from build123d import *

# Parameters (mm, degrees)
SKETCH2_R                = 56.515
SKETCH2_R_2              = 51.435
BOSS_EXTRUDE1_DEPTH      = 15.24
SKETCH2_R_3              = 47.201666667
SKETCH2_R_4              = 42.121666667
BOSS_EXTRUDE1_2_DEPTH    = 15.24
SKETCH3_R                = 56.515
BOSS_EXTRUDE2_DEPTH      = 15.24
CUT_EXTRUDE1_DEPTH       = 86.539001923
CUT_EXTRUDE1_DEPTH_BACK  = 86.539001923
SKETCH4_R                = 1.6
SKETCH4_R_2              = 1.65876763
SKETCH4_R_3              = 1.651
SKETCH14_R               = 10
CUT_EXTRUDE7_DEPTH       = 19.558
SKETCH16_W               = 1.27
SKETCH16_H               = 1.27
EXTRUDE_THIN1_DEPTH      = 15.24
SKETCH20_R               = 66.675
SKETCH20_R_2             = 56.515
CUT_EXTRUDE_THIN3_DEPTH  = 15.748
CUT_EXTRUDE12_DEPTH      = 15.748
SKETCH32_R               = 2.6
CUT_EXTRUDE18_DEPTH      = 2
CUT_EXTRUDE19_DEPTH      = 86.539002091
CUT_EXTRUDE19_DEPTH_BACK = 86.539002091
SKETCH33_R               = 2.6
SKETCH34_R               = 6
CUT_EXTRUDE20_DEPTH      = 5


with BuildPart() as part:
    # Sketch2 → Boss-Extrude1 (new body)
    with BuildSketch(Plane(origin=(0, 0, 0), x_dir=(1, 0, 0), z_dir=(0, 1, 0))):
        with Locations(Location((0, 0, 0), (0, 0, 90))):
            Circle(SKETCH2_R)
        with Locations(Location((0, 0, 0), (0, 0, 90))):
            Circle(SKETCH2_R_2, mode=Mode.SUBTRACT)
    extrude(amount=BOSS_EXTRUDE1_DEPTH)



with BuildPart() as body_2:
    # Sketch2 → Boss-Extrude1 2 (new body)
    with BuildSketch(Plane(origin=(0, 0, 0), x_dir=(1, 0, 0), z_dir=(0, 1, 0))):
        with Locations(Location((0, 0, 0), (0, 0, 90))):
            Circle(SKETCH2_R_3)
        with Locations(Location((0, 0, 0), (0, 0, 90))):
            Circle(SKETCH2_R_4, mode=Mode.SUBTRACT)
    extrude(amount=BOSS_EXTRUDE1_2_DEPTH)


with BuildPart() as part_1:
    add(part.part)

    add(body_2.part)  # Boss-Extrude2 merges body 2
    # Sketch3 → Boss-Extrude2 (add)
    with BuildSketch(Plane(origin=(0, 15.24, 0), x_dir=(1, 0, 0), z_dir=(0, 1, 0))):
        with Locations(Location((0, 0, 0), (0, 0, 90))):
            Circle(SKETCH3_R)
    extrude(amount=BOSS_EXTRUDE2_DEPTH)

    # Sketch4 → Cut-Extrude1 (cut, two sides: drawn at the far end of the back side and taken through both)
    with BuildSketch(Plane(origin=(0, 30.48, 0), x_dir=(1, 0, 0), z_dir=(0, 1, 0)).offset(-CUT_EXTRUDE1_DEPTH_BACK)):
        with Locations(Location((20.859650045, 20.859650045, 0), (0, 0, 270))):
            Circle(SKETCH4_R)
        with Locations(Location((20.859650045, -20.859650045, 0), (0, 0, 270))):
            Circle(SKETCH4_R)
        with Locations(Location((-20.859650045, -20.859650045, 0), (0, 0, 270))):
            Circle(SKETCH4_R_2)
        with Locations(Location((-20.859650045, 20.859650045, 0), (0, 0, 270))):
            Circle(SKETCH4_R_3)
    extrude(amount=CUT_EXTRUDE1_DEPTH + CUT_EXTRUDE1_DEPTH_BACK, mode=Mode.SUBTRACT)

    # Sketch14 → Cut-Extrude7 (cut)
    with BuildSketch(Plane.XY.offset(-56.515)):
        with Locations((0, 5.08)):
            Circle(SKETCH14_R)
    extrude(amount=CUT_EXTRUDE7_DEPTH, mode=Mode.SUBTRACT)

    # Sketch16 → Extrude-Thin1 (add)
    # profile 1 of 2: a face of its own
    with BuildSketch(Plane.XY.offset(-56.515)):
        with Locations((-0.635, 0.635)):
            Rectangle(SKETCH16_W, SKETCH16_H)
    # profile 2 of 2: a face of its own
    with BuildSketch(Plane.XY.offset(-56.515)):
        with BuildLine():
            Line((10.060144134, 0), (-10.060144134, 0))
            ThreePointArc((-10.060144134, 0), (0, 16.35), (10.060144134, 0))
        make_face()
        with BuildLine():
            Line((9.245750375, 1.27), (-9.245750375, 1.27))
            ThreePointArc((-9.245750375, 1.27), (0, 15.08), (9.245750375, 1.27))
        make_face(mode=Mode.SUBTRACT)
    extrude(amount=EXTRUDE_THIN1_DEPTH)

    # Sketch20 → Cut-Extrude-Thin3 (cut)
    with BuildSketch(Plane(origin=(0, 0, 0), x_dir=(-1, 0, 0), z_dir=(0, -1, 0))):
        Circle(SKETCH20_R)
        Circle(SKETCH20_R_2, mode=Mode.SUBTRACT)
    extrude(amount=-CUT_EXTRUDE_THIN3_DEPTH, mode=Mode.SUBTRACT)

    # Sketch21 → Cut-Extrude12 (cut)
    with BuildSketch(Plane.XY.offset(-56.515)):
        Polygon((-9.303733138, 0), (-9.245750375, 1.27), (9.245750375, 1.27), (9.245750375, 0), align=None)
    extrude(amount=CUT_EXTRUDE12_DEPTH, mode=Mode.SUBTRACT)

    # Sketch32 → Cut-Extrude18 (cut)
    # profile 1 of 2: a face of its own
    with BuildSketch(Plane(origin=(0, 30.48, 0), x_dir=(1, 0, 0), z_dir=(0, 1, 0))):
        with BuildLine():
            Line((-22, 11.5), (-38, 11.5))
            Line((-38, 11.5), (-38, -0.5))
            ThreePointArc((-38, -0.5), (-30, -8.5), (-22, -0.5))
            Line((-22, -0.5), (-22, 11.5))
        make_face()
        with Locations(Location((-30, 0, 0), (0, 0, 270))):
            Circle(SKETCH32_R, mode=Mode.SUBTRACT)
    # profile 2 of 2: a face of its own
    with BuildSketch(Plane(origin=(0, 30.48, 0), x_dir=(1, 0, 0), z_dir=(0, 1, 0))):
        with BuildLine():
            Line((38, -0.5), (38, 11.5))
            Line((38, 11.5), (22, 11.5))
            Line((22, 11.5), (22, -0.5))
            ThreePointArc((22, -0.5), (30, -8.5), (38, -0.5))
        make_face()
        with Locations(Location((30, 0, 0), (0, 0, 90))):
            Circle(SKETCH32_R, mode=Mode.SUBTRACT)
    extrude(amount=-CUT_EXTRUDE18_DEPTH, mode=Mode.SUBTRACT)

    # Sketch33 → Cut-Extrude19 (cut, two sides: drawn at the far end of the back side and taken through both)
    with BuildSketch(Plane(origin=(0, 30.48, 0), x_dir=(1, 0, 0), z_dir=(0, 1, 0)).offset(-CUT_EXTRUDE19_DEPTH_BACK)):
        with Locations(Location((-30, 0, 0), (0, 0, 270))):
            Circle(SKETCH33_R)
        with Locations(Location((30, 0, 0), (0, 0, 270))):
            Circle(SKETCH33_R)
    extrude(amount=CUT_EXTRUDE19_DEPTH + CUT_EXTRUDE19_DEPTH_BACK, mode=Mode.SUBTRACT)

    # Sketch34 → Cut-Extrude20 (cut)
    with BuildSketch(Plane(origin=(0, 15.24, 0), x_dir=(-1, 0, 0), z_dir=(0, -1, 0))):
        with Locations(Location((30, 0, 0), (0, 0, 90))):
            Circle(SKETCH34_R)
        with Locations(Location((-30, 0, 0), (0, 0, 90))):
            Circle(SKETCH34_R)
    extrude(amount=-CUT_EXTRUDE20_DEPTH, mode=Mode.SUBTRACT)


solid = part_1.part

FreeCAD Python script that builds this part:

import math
import FreeCAD as App
import Part
import Sketcher

V = App.Vector
Q = App.Units.Quantity

doc = App.newDocument("Part")
body = doc.addObject("PartDesign::Body", "Body")

# Sketch on XZ plane
sketch1 = body.newObject("Sketcher::SketchObject", "Sketch")
sketch1.AttachmentSupport = (doc.getObject("XZ_Plane"), [""])
sketch1.MapMode = "FlatFace"
sketch1.addGeometry(Part.Circle(V(0, 0, 0), V(0, 0, 1), 57), False)
sketch1.addGeometry(Part.Circle(V(0, 0, 0), V(0, 0, 1), 51), False)
sketch1.addConstraint(Sketcher.Constraint("Coincident", 0, 3, -1, 1))
sketch1.addConstraint(Sketcher.Constraint("Coincident", 1, 3, -1, 1))
sketch1.addConstraint(Sketcher.Constraint("Diameter", 0, Q("4.45 in")))
sketch1.addConstraint(Sketcher.Constraint("Diameter", 1, Q("4.05 in")))
pad1 = body.newObject("PartDesign::Pad", "Pad")
pad1.Profile = sketch1
pad1.Length = Q("0.6 in")
pad1.Reversed = True
body2 = doc.addObject("PartDesign::Body", "Body001")

# Sketch on XZ plane
sketch2 = body2.newObject("Sketcher::SketchObject", "Sketch001")
sketch2.AttachmentSupport = (doc.getObject("XZ_Plane001"), [""])
sketch2.MapMode = "FlatFace"
sketch2.addGeometry(Part.Circle(V(0, 0, 0), V(0, 0, 1), 47), False)
sketch2.addGeometry(Part.Circle(V(0, 0, 0), V(0, 0, 1), 42), False)
sketch2.addConstraint(Sketcher.Constraint("Coincident", 0, 3, -1, 1))
sketch2.addConstraint(Sketcher.Constraint("Coincident", 1, 3, -1, 1))
sketch2.addConstraint(Sketcher.Constraint("Diameter", 0, 94.403333))
sketch2.addConstraint(Sketcher.Constraint("Diameter", 1, 84.243333))
pad2 = body2.newObject("PartDesign::Pad", "Pad001")
pad2.Profile = sketch2
pad2.Length = Q("0.6 in")
pad2.Reversed = True
body.AllowCompound = True
doc.recompute()

boolean = body.newObject("PartDesign::Boolean", "Boolean")
boolean.Type = "Fuse"
boolean.addObjects([body2])

# Sketch on XZ plane
sketch3 = body.newObject("Sketcher::SketchObject", "Sketch002")
sketch3.AttachmentSupport = (doc.getObject("XZ_Plane"), [""])
sketch3.MapMode = "FlatFace"
sketch3.AttachmentOffset = App.Placement(V(0, 0, -0.6 * 25.4), App.Rotation())
sketch3.addGeometry(Part.Circle(V(0, 0, 0), V(0, 0, 1), 57), False)
sketch3.addConstraint(Sketcher.Constraint("Coincident", 0, 3, -1, 1))
sketch3.addConstraint(Sketcher.Constraint("Diameter", 0, Q("4.45 in")))
pad3 = body.newObject("PartDesign::Pad", "Pad002")
pad3.Profile = sketch3
pad3.Length = Q("0.6 in")
pad3.Reversed = True

# Sketch on XZ plane
sketch4 = body.newObject("Sketcher::SketchObject", "Sketch003")
sketch4.AttachmentSupport = (doc.getObject("XZ_Plane"), [""])
sketch4.MapMode = "FlatFace"
sketch4.AttachmentOffset = App.Placement(V(0, 0, -1.2 * 25.4), App.Rotation())
sketch4.addGeometry(Part.Circle(V(20.9, -20.9, 0), V(0, 0, 1), 1.6), False)
sketch4.addGeometry(Part.Circle(V(20.9, 20.9, 0), V(0, 0, 1), 1.6), False)
sketch4.addGeometry(Part.Circle(V(-20.9, 20.9, 0), V(0, 0, 1), 1.7), False)
sketch4.addGeometry(Part.Circle(V(-20.9, -20.9, 0), V(0, 0, 1), 1.7), False)
sketch4.addConstraint(Sketcher.Constraint("Equal", 0, 1))
sketch4.addConstraint(Sketcher.Constraint("Symmetric", 0, 3, 2, 3, -1, 1))
sketch4.addConstraint(Sketcher.Constraint("Symmetric", 1, 3, 3, 3, -1, 1))
sketch4.addConstraint(Sketcher.Constraint("Symmetric", 1, 3, 2, 3, -2))
sketch4.addConstraint(Sketcher.Constraint("Diameter", 3, Q("0.13 in")))
sketch4.addConstraint(Sketcher.Constraint("Diameter", 0, 3.2))
sketch4.addConstraint(Sketcher.Constraint("Diameter", 2, 3.317535))
sketch4.addConstraint(Sketcher.Constraint("DistanceY", 0, 3, 1, 3, 41.7193))
sketch4.addConstraint(Sketcher.Constraint("DistanceX", 2, 3, 1, 3, 41.7193))
pocket1 = body.newObject("PartDesign::Pocket", "Pocket")
pocket1.Profile = sketch4
pocket1.Type = "ThroughAll"
pocket1.Midplane = True

# Sketch on XY plane
sketch5 = body.newObject("Sketcher::SketchObject", "Sketch004")
sketch5.AttachmentSupport = (doc.getObject("XY_Plane"), [""])
sketch5.MapMode = "FlatFace"
sketch5.AttachmentOffset = App.Placement(V(0, 0, -2.225 * 25.4), App.Rotation())
sketch5.addGeometry(Part.Circle(V(0, 5, 0), V(0, 0, 1), 10), False)
sketch5.addConstraint(Sketcher.Constraint("PointOnObject", 0, 3, -2))
sketch5.addConstraint(Sketcher.Constraint("DistanceY", -1, 1, 0, 3, Q("0.2 in")))
sketch5.addConstraint(Sketcher.Constraint("Diameter", 0, 20.0))
pocket2 = body.newObject("PartDesign::Pocket", "Pocket001")
pocket2.Profile = sketch5
pocket2.Length = Q("0.77 in")
pocket2.Reversed = True

# Sketch on XY plane
sketch6 = body.newObject("Sketcher::SketchObject", "Sketch005")
sketch6.AttachmentSupport = (doc.getObject("XY_Plane"), [""])
sketch6.MapMode = "FlatFace"
sketch6.AttachmentOffset = App.Placement(V(0, 0, -2.225 * 25.4), App.Rotation())
sketch6.addGeometry(Part.ArcOfCircle(Part.Circle(V(0, 5, 0), V(0, 0, 1), 11), math.radians(-27), math.radians(207)), False)
sketch6.addGeometry(Part.LineSegment(V(-10, 0, 0), V(10, 0, 0)), False)
sketch6.addGeometry(Part.ArcOfCircle(Part.Circle(V(0, 5, 0), V(0, 0, 1), 10), math.radians(-22), math.radians(202)), False)
sketch6.addGeometry(Part.LineSegment(V(9, 1, 0), V(-9, 1, 0)), False)
sketch6.addConstraint(Sketcher.Constraint("Coincident", 0, 1, 1, 2))
sketch6.addConstraint(Sketcher.Constraint("Coincident", 1, 1, 0, 2))
sketch6.addConstraint(Sketcher.Constraint("Coincident", 2, 1, 3, 1))
sketch6.addConstraint(Sketcher.Constraint("Coincident", 3, 2, 2, 2))
sketch6.addConstraint(Sketcher.Constraint("Horizontal", 1))
sketch6.addConstraint(Sketcher.Constraint("Horizontal", 3))
sketch6.addConstraint(Sketcher.Constraint("Coincident", 2, 3, 0, 3))
sketch6.addConstraint(Sketcher.Constraint("Symmetric", 0, 1, 1, 1, -1, 1))
sketch6.addConstraint(Sketcher.Constraint("DistanceY", -1, 1, 0, 3, Q("0.2 in")))
sketch6.addConstraint(Sketcher.Constraint("DistanceY", -1, 1, 2, 1, Q("0.05 in")))
sketch6.addConstraint(Sketcher.Constraint("Radius", 0, 11.27))
sketch6.addConstraint(Sketcher.Constraint("Radius", 2, 10.0))
pad4 = body.newObject("PartDesign::Pad", "Pad003")
pad4.Profile = sketch6
pad4.Length = Q("0.6 in")

# Sketch on XZ plane
sketch7 = body.newObject("Sketcher::SketchObject", "Sketch006")
sketch7.AttachmentSupport = (doc.getObject("XZ_Plane"), [""])
sketch7.MapMode = "FlatFace"
sketch7.addGeometry(Part.Circle(V(0, 0, 0), V(0, 0, 1), 67), False)
sketch7.addGeometry(Part.Circle(V(0, 0, 0), V(0, 0, 1), 57), False)
sketch7.addConstraint(Sketcher.Constraint("Coincident", 0, 3, -1, 1))
sketch7.addConstraint(Sketcher.Constraint("Coincident", 1, 3, -1, 1))
sketch7.addConstraint(Sketcher.Constraint("Diameter", 0, Q("5.25 in")))
sketch7.addConstraint(Sketcher.Constraint("Diameter", 1, Q("4.45 in")))
pocket3 = body.newObject("PartDesign::Pocket", "Pocket002")
pocket3.Profile = sketch7
pocket3.Length = Q("0.62 in")

# Sketch on XY plane
sketch8 = body.newObject("Sketcher::SketchObject", "Sketch007")
sketch8.AttachmentSupport = (doc.getObject("XY_Plane"), [""])
sketch8.MapMode = "FlatFace"
sketch8.AttachmentOffset = App.Placement(V(0, 0, -2.225 * 25.4), App.Rotation())
sketch8.addGeometry(Part.LineSegment(V(-9.2, 1.3, 0), V(-9.3, 0, 0)), False)
sketch8.addGeometry(Part.LineSegment(V(-9.3, 0, 0), V(9.2, 0, 0)), False)
sketch8.addGeometry(Part.LineSegment(V(9.2, 0, 0), V(9.2, 1.3, 0)), False)
sketch8.addGeometry(Part.LineSegment(V(9.2, 1.3, 0), V(-9.2, 1.3, 0)), False)
sketch8.addConstraint(Sketcher.Constraint("Coincident", 0, 2, 1, 1))
sketch8.addConstraint(Sketcher.Constraint("Coincident", 1, 2, 2, 1))
sketch8.addConstraint(Sketcher.Constraint("Coincident", 2, 2, 3, 1))
sketch8.addConstraint(Sketcher.Constraint("Coincident", 3, 2, 0, 1))
sketch8.addConstraint(Sketcher.Constraint("Horizontal", 1))
sketch8.addConstraint(Sketcher.Constraint("Vertical", 2))
sketch8.addConstraint(Sketcher.Constraint("Horizontal", 3))
sketch8.addConstraint(Sketcher.Constraint("PointOnObject", 0, 2, -1))
sketch8.addConstraint(Sketcher.Constraint("DistanceY", 2, 1, 2, 2, Q("0.05 in")))
sketch8.addConstraint(Sketcher.Constraint("DistanceX", 3, 2, 3, 1, 18.491501))
sketch8.addConstraint(Sketcher.Constraint("DistanceX", 1, 1, 1, 2, 18.549484))
sketch8.addConstraint(Sketcher.Constraint("DistanceX", -1, 1, 1, 2, 9.24575))
pocket4 = body.newObject("PartDesign::Pocket", "Pocket003")
pocket4.Profile = sketch8
pocket4.Length = Q("0.62 in")
pocket4.Reversed = True

# Sketch on XZ plane
sketch9 = body.newObject("Sketcher::SketchObject", "Sketch008")
sketch9.AttachmentSupport = (doc.getObject("XZ_Plane"), [""])
sketch9.MapMode = "FlatFace"
sketch9.AttachmentOffset = App.Placement(V(0, 0, -1.2 * 25.4), App.Rotation())
sketch9.addGeometry(Part.LineSegment(V(-22, -11.5, 0), V(-38, -11.5, 0)), False)
sketch9.addGeometry(Part.LineSegment(V(-38, -11.5, 0), V(-38, 0.5, 0)), False)
sketch9.addGeometry(Part.ArcOfCircle(Part.Circle(V(-30, 0.5, 0), V(0, 0, 1), 8), math.radians(0), math.radians(180)), False)
sketch9.addGeometry(Part.LineSegment(V(-22, 0.5, 0), V(-22, -11.5, 0)), False)
sketch9.addGeometry(Part.Circle(V(-30, 0, 0), V(0, 0, 1), 2.6), False)
sketch9.addGeometry(Part.LineSegment(V(38, 0.5, 0), V(38, -11.5, 0)), False)
sketch9.addGeometry(Part.LineSegment(V(38, -11.5, 0), V(22, -11.5, 0)), False)
sketch9.addGeometry(Part.LineSegment(V(22, -11.5, 0), V(22, 0.5, 0)), False)
sketch9.addGeometry(Part.ArcOfCircle(Part.Circle(V(30, 0.5, 0), V(0, 0, 1), 8), math.radians(0), math.radians(180)), False)
sketch9.addGeometry(Part.Circle(V(30, 0, 0), V(0, 0, 1), 2.6), False)
sketch9.addConstraint(Sketcher.Constraint("Coincident", 0, 2, 1, 1))
sketch9.addConstraint(Sketcher.Constraint("Tangent", 1, 2, 2, 2))
sketch9.addConstraint(Sketcher.Constraint("Tangent", 2, 1, 3, 1))
sketch9.addConstraint(Sketcher.Constraint("Coincident", 3, 2, 0, 1))
sketch9.addConstraint(Sketcher.Constraint("Coincident", 5, 2, 6, 1))
sketch9.addConstraint(Sketcher.Constraint("Coincident", 6, 2, 7, 1))
sketch9.addConstraint(Sketcher.Constraint("Tangent", 7, 2, 8, 2))
sketch9.addConstraint(Sketcher.Constraint("Tangent", 8, 1, 5, 1))
sketch9.addConstraint(Sketcher.Constraint("Horizontal", 0))
sketch9.addConstraint(Sketcher.Constraint("Vertical", 1))
sketch9.addConstraint(Sketcher.Constraint("Vertical", 3))
sketch9.addConstraint(Sketcher.Constraint("Vertical", 5))
sketch9.addConstraint(Sketcher.Constraint("Horizontal", 6))
sketch9.addConstraint(Sketcher.Constraint("Vertical", 7))
sketch9.addConstraint(Sketcher.Constraint("Equal", 2, 8))
sketch9.addConstraint(Sketcher.Constraint("Equal", 4, 9))
sketch9.addConstraint(Sketcher.Constraint("Symmetric", 4, 3, 9, 3, -1, 1))
sketch9.addConstraint(Sketcher.Constraint("Symmetric", 2, 3, 8, 3, -2))
sketch9.addConstraint(Sketcher.Constraint("PointOnObject", 4, 3, -1))
sketch9.addConstraint(Sketcher.Constraint("Horizontal", 3, 2, 5, 2))
sketch9.addConstraint(Sketcher.Constraint("Vertical", 2, 3, 4, 3))
sketch9.addConstraint(Sketcher.Constraint("Diameter", 4, 5.2))
sketch9.addConstraint(Sketcher.Constraint("Radius", 2, 8.0))
sketch9.addConstraint(Sketcher.Constraint("DistanceY", 1, 1, 1, 2, 12.0))
sketch9.addConstraint(Sketcher.Constraint("DistanceX", 2, 3, -1, 1, 30.0))
sketch9.addConstraint(Sketcher.Constraint("DistanceY", -1, 1, 2, 3, 0.5))
pocket5 = body.newObject("PartDesign::Pocket", "Pocket004")
pocket5.Profile = sketch9
pocket5.Length = 2
pocket5.Reversed = True

# Sketch on XZ plane
sketch10 = body.newObject("Sketcher::SketchObject", "Sketch009")
sketch10.AttachmentSupport = (doc.getObject("XZ_Plane"), [""])
sketch10.MapMode = "FlatFace"
sketch10.AttachmentOffset = App.Placement(V(0, 0, -1.2 * 25.4), App.Rotation())
sketch10.addGeometry(Part.Circle(V(-30, 0, 0), V(0, 0, 1), 2.6), False)
sketch10.addGeometry(Part.Circle(V(30, 0, 0), V(0, 0, 1), 2.6), False)
sketch10.addConstraint(Sketcher.Constraint("Equal", 0, 1))
sketch10.addConstraint(Sketcher.Constraint("Symmetric", 0, 3, 1, 3, -1, 1))
sketch10.addConstraint(Sketcher.Constraint("PointOnObject", 0, 3, -1))
sketch10.addConstraint(Sketcher.Constraint("Diameter", 0, 5.2))
sketch10.addConstraint(Sketcher.Constraint("DistanceX", 0, 3, -1, 1, 30.0))
pocket6 = body.newObject("PartDesign::Pocket", "Pocket005")
pocket6.Profile = sketch10
pocket6.Type = "ThroughAll"
pocket6.Midplane = True

# Sketch on XZ plane
sketch11 = body.newObject("Sketcher::SketchObject", "Sketch010")
sketch11.AttachmentSupport = (doc.getObject("XZ_Plane"), [""])
sketch11.MapMode = "FlatFace"
sketch11.AttachmentOffset = App.Placement(V(0, 0, -0.6 * 25.4), App.Rotation())
sketch11.addGeometry(Part.Circle(V(-30, 0, 0), V(0, 0, 1), 6), False)
sketch11.addGeometry(Part.Circle(V(30, 0, 0), V(0, 0, 1), 6), False)
sketch11.addConstraint(Sketcher.Constraint("Equal", 0, 1))
sketch11.addConstraint(Sketcher.Constraint("Symmetric", 0, 3, 1, 3, -1, 1))
sketch11.addConstraint(Sketcher.Constraint("PointOnObject", 0, 3, -1))
sketch11.addConstraint(Sketcher.Constraint("Diameter", 0, 12.0))
sketch11.addConstraint(Sketcher.Constraint("DistanceX", 0, 3, -1, 1, 30.0))
pocket7 = body.newObject("PartDesign::Pocket", "Pocket006")
pocket7.Profile = sketch11
pocket7.Length = 5

doc.recompute()
